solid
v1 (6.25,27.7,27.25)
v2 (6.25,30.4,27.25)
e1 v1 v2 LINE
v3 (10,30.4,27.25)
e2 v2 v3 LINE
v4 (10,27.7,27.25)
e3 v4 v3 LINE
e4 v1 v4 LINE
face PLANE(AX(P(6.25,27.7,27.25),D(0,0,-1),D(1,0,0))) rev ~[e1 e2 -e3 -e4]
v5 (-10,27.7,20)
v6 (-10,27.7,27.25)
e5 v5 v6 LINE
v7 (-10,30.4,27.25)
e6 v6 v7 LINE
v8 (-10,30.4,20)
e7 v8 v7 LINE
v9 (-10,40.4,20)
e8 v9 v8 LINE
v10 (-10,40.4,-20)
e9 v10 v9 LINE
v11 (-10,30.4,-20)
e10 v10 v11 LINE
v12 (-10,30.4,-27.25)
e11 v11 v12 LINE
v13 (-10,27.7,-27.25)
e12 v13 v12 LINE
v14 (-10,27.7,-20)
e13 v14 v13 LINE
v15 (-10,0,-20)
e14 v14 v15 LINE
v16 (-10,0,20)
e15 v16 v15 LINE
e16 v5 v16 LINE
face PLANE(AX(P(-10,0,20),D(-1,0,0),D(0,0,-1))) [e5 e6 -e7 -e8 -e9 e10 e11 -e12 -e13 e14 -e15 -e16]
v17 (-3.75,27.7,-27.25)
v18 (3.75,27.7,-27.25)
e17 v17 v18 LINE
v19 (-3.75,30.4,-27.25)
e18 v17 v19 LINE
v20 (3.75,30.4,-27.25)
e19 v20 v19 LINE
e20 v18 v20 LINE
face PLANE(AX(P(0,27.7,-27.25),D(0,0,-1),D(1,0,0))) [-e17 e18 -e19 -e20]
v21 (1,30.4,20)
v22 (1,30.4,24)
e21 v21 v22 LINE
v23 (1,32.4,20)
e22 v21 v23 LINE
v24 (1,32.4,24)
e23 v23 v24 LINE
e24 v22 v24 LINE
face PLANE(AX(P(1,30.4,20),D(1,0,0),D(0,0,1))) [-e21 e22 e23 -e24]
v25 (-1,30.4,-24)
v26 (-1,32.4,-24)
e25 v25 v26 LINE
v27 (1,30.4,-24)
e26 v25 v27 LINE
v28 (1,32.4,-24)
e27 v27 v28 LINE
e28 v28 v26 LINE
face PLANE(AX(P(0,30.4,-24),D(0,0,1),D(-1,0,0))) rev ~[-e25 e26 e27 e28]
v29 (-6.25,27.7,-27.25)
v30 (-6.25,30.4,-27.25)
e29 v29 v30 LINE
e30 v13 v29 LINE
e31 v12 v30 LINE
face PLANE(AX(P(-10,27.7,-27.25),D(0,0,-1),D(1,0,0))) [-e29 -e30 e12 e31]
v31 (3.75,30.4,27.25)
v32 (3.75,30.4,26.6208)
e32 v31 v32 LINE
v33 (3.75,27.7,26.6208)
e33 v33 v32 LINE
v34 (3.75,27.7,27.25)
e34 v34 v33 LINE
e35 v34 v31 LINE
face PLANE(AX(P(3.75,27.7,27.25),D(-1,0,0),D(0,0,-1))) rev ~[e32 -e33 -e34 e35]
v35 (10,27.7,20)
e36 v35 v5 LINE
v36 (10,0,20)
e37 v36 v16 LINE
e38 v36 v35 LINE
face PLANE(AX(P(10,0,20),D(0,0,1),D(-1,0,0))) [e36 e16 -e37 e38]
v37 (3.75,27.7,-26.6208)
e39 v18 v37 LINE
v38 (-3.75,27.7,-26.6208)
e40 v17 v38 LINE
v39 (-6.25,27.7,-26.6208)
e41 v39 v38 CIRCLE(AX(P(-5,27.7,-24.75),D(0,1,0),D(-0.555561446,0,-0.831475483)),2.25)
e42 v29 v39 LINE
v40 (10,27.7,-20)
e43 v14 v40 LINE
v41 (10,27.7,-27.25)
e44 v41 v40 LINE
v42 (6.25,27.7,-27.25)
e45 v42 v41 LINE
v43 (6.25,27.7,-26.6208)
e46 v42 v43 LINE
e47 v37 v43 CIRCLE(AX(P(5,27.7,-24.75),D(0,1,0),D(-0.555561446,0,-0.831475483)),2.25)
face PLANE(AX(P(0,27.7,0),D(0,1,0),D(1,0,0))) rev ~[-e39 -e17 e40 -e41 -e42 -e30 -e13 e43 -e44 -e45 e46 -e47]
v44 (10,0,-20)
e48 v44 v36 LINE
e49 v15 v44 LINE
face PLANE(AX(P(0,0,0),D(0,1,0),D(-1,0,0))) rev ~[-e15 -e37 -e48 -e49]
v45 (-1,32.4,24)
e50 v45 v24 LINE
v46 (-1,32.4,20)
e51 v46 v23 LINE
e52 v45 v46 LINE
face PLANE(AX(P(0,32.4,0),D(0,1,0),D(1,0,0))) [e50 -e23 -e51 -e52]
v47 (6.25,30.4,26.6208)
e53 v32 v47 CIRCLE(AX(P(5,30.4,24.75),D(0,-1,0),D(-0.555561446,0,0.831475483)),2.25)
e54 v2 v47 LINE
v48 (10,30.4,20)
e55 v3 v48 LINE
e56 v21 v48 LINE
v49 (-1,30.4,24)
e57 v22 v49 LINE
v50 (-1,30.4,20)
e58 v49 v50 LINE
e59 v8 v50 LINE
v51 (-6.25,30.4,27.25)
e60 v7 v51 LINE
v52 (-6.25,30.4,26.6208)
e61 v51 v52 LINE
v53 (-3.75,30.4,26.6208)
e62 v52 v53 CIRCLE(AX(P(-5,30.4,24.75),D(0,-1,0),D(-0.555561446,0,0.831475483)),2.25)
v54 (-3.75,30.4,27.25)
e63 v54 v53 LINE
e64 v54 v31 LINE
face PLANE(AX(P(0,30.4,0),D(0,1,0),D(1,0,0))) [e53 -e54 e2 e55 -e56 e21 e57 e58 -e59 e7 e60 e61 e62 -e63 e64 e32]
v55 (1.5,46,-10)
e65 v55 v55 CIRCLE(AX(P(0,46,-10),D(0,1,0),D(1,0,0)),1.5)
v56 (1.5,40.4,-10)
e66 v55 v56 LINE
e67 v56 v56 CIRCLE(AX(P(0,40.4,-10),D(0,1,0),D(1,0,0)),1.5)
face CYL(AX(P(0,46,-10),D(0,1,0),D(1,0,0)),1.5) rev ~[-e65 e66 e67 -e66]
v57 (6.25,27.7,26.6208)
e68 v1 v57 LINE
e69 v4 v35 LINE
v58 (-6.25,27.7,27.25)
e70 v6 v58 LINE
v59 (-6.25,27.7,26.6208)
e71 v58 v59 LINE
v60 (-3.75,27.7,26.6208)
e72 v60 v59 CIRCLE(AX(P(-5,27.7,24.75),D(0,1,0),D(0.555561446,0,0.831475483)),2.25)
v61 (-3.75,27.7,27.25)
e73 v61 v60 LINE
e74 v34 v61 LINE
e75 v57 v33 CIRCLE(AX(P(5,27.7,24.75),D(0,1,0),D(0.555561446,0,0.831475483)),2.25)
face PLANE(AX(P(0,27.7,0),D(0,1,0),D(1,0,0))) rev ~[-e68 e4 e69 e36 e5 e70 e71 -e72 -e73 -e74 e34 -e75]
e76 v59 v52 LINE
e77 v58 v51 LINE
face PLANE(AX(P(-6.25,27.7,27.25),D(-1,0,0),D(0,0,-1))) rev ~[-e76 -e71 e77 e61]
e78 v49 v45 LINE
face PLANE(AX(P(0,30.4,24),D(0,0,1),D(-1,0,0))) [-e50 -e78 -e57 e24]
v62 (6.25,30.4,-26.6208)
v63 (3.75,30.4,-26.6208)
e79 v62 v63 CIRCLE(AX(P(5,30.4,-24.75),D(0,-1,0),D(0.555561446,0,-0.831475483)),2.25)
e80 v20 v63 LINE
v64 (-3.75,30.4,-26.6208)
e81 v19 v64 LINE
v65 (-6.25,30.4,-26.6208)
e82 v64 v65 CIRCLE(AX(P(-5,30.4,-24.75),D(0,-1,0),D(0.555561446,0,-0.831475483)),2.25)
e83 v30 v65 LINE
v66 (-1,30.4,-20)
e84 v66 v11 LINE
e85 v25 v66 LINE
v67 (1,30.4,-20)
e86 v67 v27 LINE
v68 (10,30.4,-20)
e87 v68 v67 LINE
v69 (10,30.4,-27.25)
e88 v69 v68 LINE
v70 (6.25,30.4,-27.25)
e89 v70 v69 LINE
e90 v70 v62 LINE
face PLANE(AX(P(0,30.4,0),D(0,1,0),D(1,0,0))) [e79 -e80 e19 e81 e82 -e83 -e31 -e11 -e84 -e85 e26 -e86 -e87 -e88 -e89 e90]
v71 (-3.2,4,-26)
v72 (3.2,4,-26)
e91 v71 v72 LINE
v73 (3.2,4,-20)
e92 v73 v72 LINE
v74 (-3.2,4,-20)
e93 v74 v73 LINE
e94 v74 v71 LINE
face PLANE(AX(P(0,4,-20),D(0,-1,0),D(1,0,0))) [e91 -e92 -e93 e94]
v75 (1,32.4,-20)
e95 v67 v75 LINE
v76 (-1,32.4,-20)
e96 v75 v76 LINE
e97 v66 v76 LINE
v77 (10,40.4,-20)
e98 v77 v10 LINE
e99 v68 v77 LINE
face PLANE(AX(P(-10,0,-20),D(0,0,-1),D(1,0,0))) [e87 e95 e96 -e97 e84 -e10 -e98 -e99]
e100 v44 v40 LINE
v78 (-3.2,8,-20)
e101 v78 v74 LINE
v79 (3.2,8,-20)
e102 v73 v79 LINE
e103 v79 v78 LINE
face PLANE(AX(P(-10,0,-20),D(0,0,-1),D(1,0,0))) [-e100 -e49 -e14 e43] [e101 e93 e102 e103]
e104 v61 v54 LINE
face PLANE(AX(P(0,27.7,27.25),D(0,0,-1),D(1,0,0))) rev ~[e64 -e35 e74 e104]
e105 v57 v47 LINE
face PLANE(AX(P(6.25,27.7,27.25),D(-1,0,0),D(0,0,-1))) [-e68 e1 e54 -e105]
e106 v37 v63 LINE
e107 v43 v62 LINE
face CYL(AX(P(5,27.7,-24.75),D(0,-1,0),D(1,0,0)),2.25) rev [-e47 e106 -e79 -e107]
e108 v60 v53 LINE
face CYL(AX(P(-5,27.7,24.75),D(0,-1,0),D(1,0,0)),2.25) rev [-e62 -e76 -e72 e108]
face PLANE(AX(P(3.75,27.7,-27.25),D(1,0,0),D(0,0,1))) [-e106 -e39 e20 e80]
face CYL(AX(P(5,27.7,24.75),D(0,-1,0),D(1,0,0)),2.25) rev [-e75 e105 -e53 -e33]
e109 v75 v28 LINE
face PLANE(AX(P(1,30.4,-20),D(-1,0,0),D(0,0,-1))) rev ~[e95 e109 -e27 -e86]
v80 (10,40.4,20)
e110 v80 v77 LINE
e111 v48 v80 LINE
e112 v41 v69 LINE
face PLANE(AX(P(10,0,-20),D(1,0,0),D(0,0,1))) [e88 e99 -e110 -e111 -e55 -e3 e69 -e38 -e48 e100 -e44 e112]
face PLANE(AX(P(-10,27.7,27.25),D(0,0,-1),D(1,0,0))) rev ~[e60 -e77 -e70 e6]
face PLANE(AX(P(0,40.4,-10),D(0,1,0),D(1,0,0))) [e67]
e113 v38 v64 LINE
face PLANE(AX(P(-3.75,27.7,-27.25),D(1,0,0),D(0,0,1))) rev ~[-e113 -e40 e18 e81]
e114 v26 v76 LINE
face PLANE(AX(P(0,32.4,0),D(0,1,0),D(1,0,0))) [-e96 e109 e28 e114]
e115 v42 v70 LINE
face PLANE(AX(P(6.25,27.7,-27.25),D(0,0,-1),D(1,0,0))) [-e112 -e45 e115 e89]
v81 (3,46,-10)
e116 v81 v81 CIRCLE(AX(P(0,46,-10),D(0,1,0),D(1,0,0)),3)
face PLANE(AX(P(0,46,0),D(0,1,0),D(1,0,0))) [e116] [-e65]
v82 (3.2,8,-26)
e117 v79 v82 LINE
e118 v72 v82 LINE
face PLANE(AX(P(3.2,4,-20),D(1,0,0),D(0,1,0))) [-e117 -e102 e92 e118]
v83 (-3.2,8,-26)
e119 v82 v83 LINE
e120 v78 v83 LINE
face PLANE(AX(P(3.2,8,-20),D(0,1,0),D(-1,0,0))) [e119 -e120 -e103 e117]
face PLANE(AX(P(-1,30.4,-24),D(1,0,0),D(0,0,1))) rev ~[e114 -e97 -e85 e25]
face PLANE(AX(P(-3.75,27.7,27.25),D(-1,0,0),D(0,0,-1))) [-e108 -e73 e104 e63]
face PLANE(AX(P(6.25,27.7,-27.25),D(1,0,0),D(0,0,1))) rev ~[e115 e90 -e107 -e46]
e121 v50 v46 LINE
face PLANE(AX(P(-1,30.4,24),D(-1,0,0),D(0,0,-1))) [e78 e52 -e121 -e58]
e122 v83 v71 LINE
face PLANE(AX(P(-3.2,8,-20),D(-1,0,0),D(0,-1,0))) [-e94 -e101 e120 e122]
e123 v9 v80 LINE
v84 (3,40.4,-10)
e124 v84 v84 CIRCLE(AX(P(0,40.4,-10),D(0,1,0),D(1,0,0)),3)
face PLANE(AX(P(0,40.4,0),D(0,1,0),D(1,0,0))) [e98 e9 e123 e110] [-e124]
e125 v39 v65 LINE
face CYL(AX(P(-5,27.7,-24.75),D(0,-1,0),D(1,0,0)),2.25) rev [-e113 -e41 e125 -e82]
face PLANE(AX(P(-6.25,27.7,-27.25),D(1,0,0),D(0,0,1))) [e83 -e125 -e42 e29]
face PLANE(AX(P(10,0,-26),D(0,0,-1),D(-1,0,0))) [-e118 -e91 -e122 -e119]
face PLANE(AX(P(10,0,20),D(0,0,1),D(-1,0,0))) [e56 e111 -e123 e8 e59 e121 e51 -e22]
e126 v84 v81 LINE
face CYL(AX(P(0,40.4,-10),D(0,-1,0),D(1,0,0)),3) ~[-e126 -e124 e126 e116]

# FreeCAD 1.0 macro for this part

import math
import FreeCAD as App
import Part
import Sketcher
from FreeCAD import Vector


def add_polygon(sketch, points):
    """Adds a closed chain of lines whose ends are joined by coincident constraints."""
    first, n = sketch.GeometryCount, len(points)
    for a, b in zip(points, points[1:] + points[:1]):
        sketch.addGeometry(Part.LineSegment(App.Vector(*a, 0), App.Vector(*b, 0)), False)
    for i in range(n):
        sketch.addConstraint(Sketcher.Constraint("Coincident", first + i, 2, first + (i + 1) % n, 1))

doc = App.newDocument("Part")
body = doc.addObject("PartDesign::Body", "Body")

# Sketch on XZ plane
sketch1 = body.newObject("Sketcher::SketchObject", "Sketch")
sketch1.AttachmentSupport = (doc.getObject("XZ_Plane"), [""])
sketch1.MapMode = "FlatFace"
add_polygon(sketch1, [(-10, 20), (10, 20), (10, -20), (-10, -20)])  # lines 0-3
sketch1.addConstraint(Sketcher.Constraint("Horizontal", 0))
sketch1.addConstraint(Sketcher.Constraint("Vertical", 1))
sketch1.addConstraint(Sketcher.Constraint("Horizontal", 2))
sketch1.addConstraint(Sketcher.Constraint("Vertical", 3))
sketch1.addConstraint(Sketcher.Constraint("Symmetric", 0, 2, 2, 2, -1, 1))
sketch1.addConstraint(Sketcher.Constraint("DistanceX", 0, 1, 0, 2, 20.0))
sketch1.addConstraint(Sketcher.Constraint("DistanceY", 1, 2, 1, 1, 40.0))
pad1 = body.newObject("PartDesign::Pad", "Pad")
pad1.Profile = sketch1
pad1.Length = 27.7
pad1.Reversed = True

# Sketch on XZ plane
sketch2 = body.newObject("Sketcher::SketchObject", "Sketch001")
sketch2.AttachmentSupport = (doc.getObject("XZ_Plane"), [""])
sketch2.MapMode = "FlatFace"
sketch2.AttachmentOffset = App.Placement(Vector(0, 0, -27.7), App.Rotation())
add_polygon(sketch2, [(10, -20), (-10, -20), (-10, 20), (10, 20)])  # lines 0-3
sketch2.addConstraint(Sketcher.Constraint("Horizontal", 0))
sketch2.addConstraint(Sketcher.Constraint("Vertical", 1))
sketch2.addConstraint(Sketcher.Constraint("Horizontal", 2))
sketch2.addConstraint(Sketcher.Constraint("Vertical", 3))
sketch2.addConstraint(Sketcher.Constraint("Symmetric", 0, 2, 2, 2, -1, 1))
sketch2.addConstraint(Sketcher.Constraint("DistanceX", 0, 2, 0, 1, 20.0))
sketch2.addConstraint(Sketcher.Constraint("DistanceY", 1, 1, 1, 2, 40.0))
pad2 = body.newObject("PartDesign::Pad", "Pad001")
pad2.Profile = sketch2
pad2.Length = 12.7
pad2.Reversed = True

# Sketch on XZ plane
sketch3 = body.newObject("Sketcher::SketchObject", "Sketch002")
sketch3.AttachmentSupport = (doc.getObject("XZ_Plane"), [""])
sketch3.MapMode = "FlatFace"
sketch3.AttachmentOffset = App.Placement(Vector(0, 0, -27.7), App.Rotation())
sketch3.addGeometry(Part.LineSegment(Vector(10, 27.2, 0), Vector(10, 20, 0)), False)
sketch3.addGeometry(Part.LineSegment(Vector(10, 20, 0), Vector(-10, 20, 0)), False)
sketch3.addGeometry(Part.LineSegment(Vector(-10, 20, 0), Vector(-10, 27.2, 0)), False)
sketch3.addGeometry(Part.LineSegment(Vector(-10, 27.2, 0), Vector(-6.2, 27.2, 0)), False)
sketch3.addGeometry(Part.LineSegment(Vector(-6.2, 27.2, 0), Vector(-6.2, 26.6, 0)), False)
sketch3.addGeometry(Part.ArcOfCircle(Part.Circle(Vector(-5, 24.8, 0), Vector(0, 0, 1), 2.2), math.radians(124), math.radians(416)), False)
sketch3.addGeometry(Part.LineSegment(Vector(-3.8, 26.6, 0), Vector(-3.8, 27.2, 0)), False)
sketch3.addGeometry(Part.LineSegment(Vector(-3.8, 27.2, 0), Vector(3.8, 27.2, 0)), False)
sketch3.addGeometry(Part.LineSegment(Vector(3.8, 27.2, 0), Vector(3.8, 26.6, 0)), False)
sketch3.addGeometry(Part.ArcOfCircle(Part.Circle(Vector(5, 24.8, 0), Vector(0, 0, 1), 2.2), math.radians(124), math.radians(416)), False)
sketch3.addGeometry(Part.LineSegment(Vector(6.2, 26.6, 0), Vector(6.2, 27.2, 0)), False)
sketch3.addGeometry(Part.LineSegment(Vector(6.2, 27.2, 0), Vector(10, 27.2, 0)), False)
sketch3.addGeometry(Part.LineSegment(Vector(10, -20, 0), Vector(10, -27.2, 0)), False)
sketch3.addGeometry(Part.LineSegment(Vector(10, -27.2, 0), Vector(6.2, -27.2, 0)), False)
sketch3.addGeometry(Part.LineSegment(Vector(6.2, -27.2, 0), Vector(6.2, -26.6, 0)), False)
sketch3.addGeometry(Part.ArcOfCircle(Part.Circle(Vector(5, -24.8, 0), Vector(0, 0, 1), 2.2), math.radians(-56), math.radians(236)), False)
sketch3.addGeometry(Part.LineSegment(Vector(3.8, -26.6, 0), Vector(3.8, -27.2, 0)), False)
sketch3.addGeometry(Part.LineSegment(Vector(3.8, -27.2, 0), Vector(-3.8, -27.2, 0)), False)
sketch3.addGeometry(Part.LineSegment(Vector(-3.8, -27.2, 0), Vector(-3.8, -26.6, 0)), False)
sketch3.addGeometry(Part.ArcOfCircle(Part.Circle(Vector(-5, -24.8, 0), Vector(0, 0, 1), 2.2), math.radians(-56), math.radians(236)), False)
sketch3.addGeometry(Part.LineSegment(Vector(-6.2, -26.6, 0), Vector(-6.2, -27.2, 0)), False)
sketch3.addGeometry(Part.LineSegment(Vector(-6.2, -27.2, 0), Vector(-10, -27.2, 0)), False)
sketch3.addGeometry(Part.LineSegment(Vector(-10, -27.2, 0), Vector(-10, -20, 0)), False)
sketch3.addGeometry(Part.LineSegment(Vector(-10, -20, 0), Vector(10, -20, 0)), False)
sketch3.addConstraint(Sketcher.Constraint("Coincident", 0, 2, 1, 1))
sketch3.addConstraint(Sketcher.Constraint("Coincident", 1, 2, 2, 1))
sketch3.addConstraint(Sketcher.Constraint("Coincident", 2, 2, 3, 1))
sketch3.addConstraint(Sketcher.Constraint("Coincident", 3, 2, 4, 1))
sketch3.addConstraint(Sketcher.Constraint("Coincident", 4, 2, 5, 1))
sketch3.addConstraint(Sketcher.Constraint("Coincident", 5, 2, 6, 1))
sketch3.addConstraint(Sketcher.Constraint("Coincident", 6, 2, 7, 1))
sketch3.addConstraint(Sketcher.Constraint("Coincident", 7, 2, 8, 1))
sketch3.addConstraint(Sketcher.Constraint("Coincident", 8, 2, 9, 1))
sketch3.addConstraint(Sketcher.Constraint("Coincident", 9, 2, 10, 1))
sketch3.addConstraint(Sketcher.Constraint("Coincident", 10, 2, 11, 1))
sketch3.addConstraint(Sketcher.Constraint("Coincident", 11, 2, 0, 1))
sketch3.addConstraint(Sketcher.Constraint("Coincident", 12, 2, 13, 1))
sketch3.addConstraint(Sketcher.Constraint("Coincident", 13, 2, 14, 1))
sketch3.addConstraint(Sketcher.Constraint("Coincident", 14, 2, 15, 1))
sketch3.addConstraint(Sketcher.Constraint("Coincident", 15, 2, 16, 1))
sketch3.addConstraint(Sketcher.Constraint("Coincident", 16, 2, 17, 1))
sketch3.addConstraint(Sketcher.Constraint("Coincident", 17, 2, 18, 1))
sketch3.addConstraint(Sketcher.Constraint("Coincident", 18, 2, 19, 1))
sketch3.addConstraint(Sketcher.Constraint("Coincident", 19, 2, 20, 1))
sketch3.addConstraint(Sketcher.Constraint("Coincident", 20, 2, 21, 1))
sketch3.addConstraint(Sketcher.Constraint("Coincident", 21, 2, 22, 1))
sketch3.addConstraint(Sketcher.Constraint("Coincident", 22, 2, 23, 1))
sketch3.addConstraint(Sketcher.Constraint("Coincident", 23, 2, 12, 1))
sketch3.addConstraint(Sketcher.Constraint("Vertical", 0))
sketch3.addConstraint(Sketcher.Constraint("Horizontal", 1))
sketch3.addConstraint(Sketcher.Constraint("Vertical", 2))
sketch3.addConstraint(Sketcher.Constraint("Horizontal", 3))
sketch3.addConstraint(Sketcher.Constraint("Vertical", 4))
sketch3.addConstraint(Sketcher.Constraint("Vertical", 6))
sketch3.addConstraint(Sketcher.Constraint("Horizontal", 7))
sketch3.addConstraint(Sketcher.Constraint("Vertical", 8))
sketch3.addConstraint(Sketcher.Constraint("Vertical", 10))
sketch3.addConstraint(Sketcher.Constraint("Horizontal", 11))
sketch3.addConstraint(Sketcher.Constraint("Vertical", 12))
sketch3.addConstraint(Sketcher.Constraint("Horizontal", 13))
sketch3.addConstraint(Sketcher.Constraint("Vertical", 14))
sketch3.addConstraint(Sketcher.Constraint("Vertical", 16))
sketch3.addConstraint(Sketcher.Constraint("Horizontal", 17))
sketch3.addConstraint(Sketcher.Constraint("Vertical", 18))
sketch3.addConstraint(Sketcher.Constraint("Vertical", 20))
sketch3.addConstraint(Sketcher.Constraint("Horizontal", 21))
sketch3.addConstraint(Sketcher.Constraint("Vertical", 22))
sketch3.addConstraint(Sketcher.Constraint("Horizontal", 23))
sketch3.addConstraint(Sketcher.Constraint("Equal", 5, 9))
sketch3.addConstraint(Sketcher.Constraint("Equal", 9, 15))
sketch3.addConstraint(Sketcher.Constraint("Equal", 15, 19))
sketch3.addConstraint(Sketcher.Constraint("Symmetric", 5, 3, 15, 3, -1, 1))
sketch3.addConstraint(Sketcher.Constraint("Symmetric", 9, 3, 19, 3, -1, 1))
sketch3.addConstraint(Sketcher.Constraint("Symmetric", 2, 2, 12, 2, -1, 1))
sketch3.addConstraint(Sketcher.Constraint("Symmetric", 6, 2, 16, 2, -1, 1))
sketch3.addConstraint(Sketcher.Constraint("Symmetric", 10, 2, 20, 2, -1, 1))
sketch3.addConstraint(Sketcher.Constraint("Symmetric", 0, 2, 22, 2, -1, 1))
sketch3.addConstraint(Sketcher.Constraint("Symmetric", 5, 3, 9, 3, -2))
sketch3.addConstraint(Sketcher.Constraint("Symmetric", 3, 2, 10, 2, -2))
sketch3.addConstraint(Sketcher.Constraint("Horizontal", 4, 2, 5, 2))
sketch3.addConstraint(Sketcher.Constraint("Horizontal", 3, 2, 6, 2))
sketch3.addConstraint(Sketcher.Constraint("Horizontal", 5, 2, 8, 2))
sketch3.addConstraint(Sketcher.Constraint("Horizontal", 14, 2, 15, 2))
sketch3.addConstraint(Sketcher.Constraint("Horizontal", 15, 2, 18, 2))
sketch3.addConstraint(Sketcher.Constraint("Vertical", 11, 2, 12, 2))
sketch3.addConstraint(Sketcher.Constraint("Radius", 5, 2.25))
sketch3.addConstraint(Sketcher.Constraint("DistanceX", -1, 1, 0, 2, 10.0))
sketch3.addConstraint(Sketcher.Constraint("DistanceX", 5, 3, 9, 3, 10.0))
sketch3.addConstraint(Sketcher.Constraint("DistanceY", 15, 3, 9, 3, 49.5))
sketch3.addConstraint(Sketcher.Constraint("DistanceY", 5, 3, 2, 2, 2.5))
sketch3.addConstraint(Sketcher.Constraint("DistanceX", 4, 2, 5, 2, 2.5))
sketch3.addConstraint(Sketcher.Constraint("DistanceY", -1, 1, 0, 2, 20.0))
pad3 = body.newObject("PartDesign::Pad", "Pad002")
pad3.Profile = sketch3
pad3.Length = 2.7
pad3.Reversed = True

# Sketch on XZ plane
sketch4 = body.newObject("Sketcher::SketchObject", "Sketch003")
sketch4.AttachmentSupport = (doc.getObject("XZ_Plane"), [""])
sketch4.MapMode = "FlatFace"
sketch4.AttachmentOffset = App.Placement(Vector(0, 0, -30.4), App.Rotation())
add_polygon(sketch4, [(-1, -20), (1, -20), (1, -24), (-1, -24)])  # lines 0-3
add_polygon(sketch4, [(-1, 20), (-1, 24), (1, 24), (1, 20)])  # lines 4-7
sketch4.addConstraint(Sketcher.Constraint("Horizontal", 0))
sketch4.addConstraint(Sketcher.Constraint("Vertical", 1))
sketch4.addConstraint(Sketcher.Constraint("Horizontal", 2))
sketch4.addConstraint(Sketcher.Constraint("Vertical", 3))
sketch4.addConstraint(Sketcher.Constraint("Vertical", 4))
sketch4.addConstraint(Sketcher.Constraint("Horizontal", 5))
sketch4.addConstraint(Sketcher.Constraint("Vertical", 6))
sketch4.addConstraint(Sketcher.Constraint("Horizontal", 7))
sketch4.addConstraint(Sketcher.Constraint("Symmetric", 1, 2, 4, 2, -1, 1))
sketch4.addConstraint(Sketcher.Constraint("Symmetric", 3, 2, 6, 2, -1, 1))
sketch4.addConstraint(Sketcher.Constraint("Vertical", 3, 2, 4, 2))
sketch4.addConstraint(Sketcher.Constraint("DistanceX", 0, 1, 0, 2, 2.0))
sketch4.addConstraint(Sketcher.Constraint("DistanceY", 1, 2, 1, 1, 4.0))
sketch4.addConstraint(Sketcher.Constraint("DistanceY", 0, 2, -1, 1, 20.0))
pad4 = body.newObject("PartDesign::Pad", "Pad003")
pad4.Profile = sketch4
pad4.Length = 2
pad4.Reversed = True

# Sketch on XZ plane
sketch5 = body.newObject("Sketcher::SketchObject", "Sketch004")
sketch5.AttachmentSupport = (doc.getObject("XZ_Plane"), [""])
sketch5.MapMode = "FlatFace"
sketch5.AttachmentOffset = App.Placement(Vector(0, 0, -40.4), App.Rotation())
sketch5.addGeometry(Part.Circle(Vector(0, -10, 0), Vector(0, 0, 1), 3), False)
sketch5.addConstraint(Sketcher.Constraint("PointOnObject", 0, 3, -2))
sketch5.addConstraint(Sketcher.Constraint("Diameter", 0, 6.0))
sketch5.addConstraint(Sketcher.Constraint("DistanceY", 0, 3, -1, 1, 10.0))
pad5 = body.newObject("PartDesign::Pad", "Pad004")
pad5.Profile = sketch5
pad5.Length = 5.6
pad5.Reversed = True

# Sketch on XZ plane
sketch6 = body.newObject("Sketcher::SketchObject", "Sketch005")
sketch6.AttachmentSupport = (doc.getObject("XZ_Plane"), [""])
sketch6.MapMode = "FlatFace"
sketch6.AttachmentOffset = App.Placement(Vector(0, 0, -46), App.Rotation())
sketch6.addGeometry(Part.Circle(Vector(0, -10, 0), Vector(0, 0, 1), 1.5), False)
sketch6.addConstraint(Sketcher.Constraint("PointOnObject", 0, 3, -2))
sketch6.addConstraint(Sketcher.Constraint("Diameter", 0, 3.0))
sketch6.addConstraint(Sketcher.Constraint("DistanceY", 0, 3, -1, 1, 10.0))
pocket1 = body.newObject("PartDesign::Pocket", "Pocket")
pocket1.Profile = sketch6
pocket1.Length = 5.6
pocket1.Reversed = True

# Sketch on XY plane
sketch7 = body.newObject("Sketcher::SketchObject", "Sketch006")
sketch7.AttachmentSupport = (doc.getObject("XY_Plane"), [""])
sketch7.MapMode = "FlatFace"
sketch7.AttachmentOffset = App.Placement(Vector(0, 0, -20), App.Rotation())
add_polygon(sketch7, [(-3.2, 8), (3.2, 8), (3.2, 4), (-3.2, 4)])  # lines 0-3
sketch7.addConstraint(Sketcher.Constraint("Horizontal", 0))
sketch7.addConstraint(Sketcher.Constraint("Vertical", 1))
sketch7.addConstraint(Sketcher.Constraint("Horizontal", 2))
sketch7.addConstraint(Sketcher.Constraint("Vertical", 3))
sketch7.addConstraint(Sketcher.Constraint("DistanceY", 1, 2, 1, 1, 4.0))
sketch7.addConstraint(Sketcher.Constraint("DistanceX", 0, 1, 0, 2, 6.4))
sketch7.addConstraint(Sketcher.Constraint("DistanceY", -1, 1, 0, 2, 8.0))
sketch7.addConstraint(Sketcher.Constraint("DistanceX", -1, 1, 0, 2, 3.2))
pad6 = body.newObject("PartDesign::Pad", "Pad005")
pad6.Profile = sketch7
pad6.Length = 6
pad6.Reversed = True

doc.recompute()
